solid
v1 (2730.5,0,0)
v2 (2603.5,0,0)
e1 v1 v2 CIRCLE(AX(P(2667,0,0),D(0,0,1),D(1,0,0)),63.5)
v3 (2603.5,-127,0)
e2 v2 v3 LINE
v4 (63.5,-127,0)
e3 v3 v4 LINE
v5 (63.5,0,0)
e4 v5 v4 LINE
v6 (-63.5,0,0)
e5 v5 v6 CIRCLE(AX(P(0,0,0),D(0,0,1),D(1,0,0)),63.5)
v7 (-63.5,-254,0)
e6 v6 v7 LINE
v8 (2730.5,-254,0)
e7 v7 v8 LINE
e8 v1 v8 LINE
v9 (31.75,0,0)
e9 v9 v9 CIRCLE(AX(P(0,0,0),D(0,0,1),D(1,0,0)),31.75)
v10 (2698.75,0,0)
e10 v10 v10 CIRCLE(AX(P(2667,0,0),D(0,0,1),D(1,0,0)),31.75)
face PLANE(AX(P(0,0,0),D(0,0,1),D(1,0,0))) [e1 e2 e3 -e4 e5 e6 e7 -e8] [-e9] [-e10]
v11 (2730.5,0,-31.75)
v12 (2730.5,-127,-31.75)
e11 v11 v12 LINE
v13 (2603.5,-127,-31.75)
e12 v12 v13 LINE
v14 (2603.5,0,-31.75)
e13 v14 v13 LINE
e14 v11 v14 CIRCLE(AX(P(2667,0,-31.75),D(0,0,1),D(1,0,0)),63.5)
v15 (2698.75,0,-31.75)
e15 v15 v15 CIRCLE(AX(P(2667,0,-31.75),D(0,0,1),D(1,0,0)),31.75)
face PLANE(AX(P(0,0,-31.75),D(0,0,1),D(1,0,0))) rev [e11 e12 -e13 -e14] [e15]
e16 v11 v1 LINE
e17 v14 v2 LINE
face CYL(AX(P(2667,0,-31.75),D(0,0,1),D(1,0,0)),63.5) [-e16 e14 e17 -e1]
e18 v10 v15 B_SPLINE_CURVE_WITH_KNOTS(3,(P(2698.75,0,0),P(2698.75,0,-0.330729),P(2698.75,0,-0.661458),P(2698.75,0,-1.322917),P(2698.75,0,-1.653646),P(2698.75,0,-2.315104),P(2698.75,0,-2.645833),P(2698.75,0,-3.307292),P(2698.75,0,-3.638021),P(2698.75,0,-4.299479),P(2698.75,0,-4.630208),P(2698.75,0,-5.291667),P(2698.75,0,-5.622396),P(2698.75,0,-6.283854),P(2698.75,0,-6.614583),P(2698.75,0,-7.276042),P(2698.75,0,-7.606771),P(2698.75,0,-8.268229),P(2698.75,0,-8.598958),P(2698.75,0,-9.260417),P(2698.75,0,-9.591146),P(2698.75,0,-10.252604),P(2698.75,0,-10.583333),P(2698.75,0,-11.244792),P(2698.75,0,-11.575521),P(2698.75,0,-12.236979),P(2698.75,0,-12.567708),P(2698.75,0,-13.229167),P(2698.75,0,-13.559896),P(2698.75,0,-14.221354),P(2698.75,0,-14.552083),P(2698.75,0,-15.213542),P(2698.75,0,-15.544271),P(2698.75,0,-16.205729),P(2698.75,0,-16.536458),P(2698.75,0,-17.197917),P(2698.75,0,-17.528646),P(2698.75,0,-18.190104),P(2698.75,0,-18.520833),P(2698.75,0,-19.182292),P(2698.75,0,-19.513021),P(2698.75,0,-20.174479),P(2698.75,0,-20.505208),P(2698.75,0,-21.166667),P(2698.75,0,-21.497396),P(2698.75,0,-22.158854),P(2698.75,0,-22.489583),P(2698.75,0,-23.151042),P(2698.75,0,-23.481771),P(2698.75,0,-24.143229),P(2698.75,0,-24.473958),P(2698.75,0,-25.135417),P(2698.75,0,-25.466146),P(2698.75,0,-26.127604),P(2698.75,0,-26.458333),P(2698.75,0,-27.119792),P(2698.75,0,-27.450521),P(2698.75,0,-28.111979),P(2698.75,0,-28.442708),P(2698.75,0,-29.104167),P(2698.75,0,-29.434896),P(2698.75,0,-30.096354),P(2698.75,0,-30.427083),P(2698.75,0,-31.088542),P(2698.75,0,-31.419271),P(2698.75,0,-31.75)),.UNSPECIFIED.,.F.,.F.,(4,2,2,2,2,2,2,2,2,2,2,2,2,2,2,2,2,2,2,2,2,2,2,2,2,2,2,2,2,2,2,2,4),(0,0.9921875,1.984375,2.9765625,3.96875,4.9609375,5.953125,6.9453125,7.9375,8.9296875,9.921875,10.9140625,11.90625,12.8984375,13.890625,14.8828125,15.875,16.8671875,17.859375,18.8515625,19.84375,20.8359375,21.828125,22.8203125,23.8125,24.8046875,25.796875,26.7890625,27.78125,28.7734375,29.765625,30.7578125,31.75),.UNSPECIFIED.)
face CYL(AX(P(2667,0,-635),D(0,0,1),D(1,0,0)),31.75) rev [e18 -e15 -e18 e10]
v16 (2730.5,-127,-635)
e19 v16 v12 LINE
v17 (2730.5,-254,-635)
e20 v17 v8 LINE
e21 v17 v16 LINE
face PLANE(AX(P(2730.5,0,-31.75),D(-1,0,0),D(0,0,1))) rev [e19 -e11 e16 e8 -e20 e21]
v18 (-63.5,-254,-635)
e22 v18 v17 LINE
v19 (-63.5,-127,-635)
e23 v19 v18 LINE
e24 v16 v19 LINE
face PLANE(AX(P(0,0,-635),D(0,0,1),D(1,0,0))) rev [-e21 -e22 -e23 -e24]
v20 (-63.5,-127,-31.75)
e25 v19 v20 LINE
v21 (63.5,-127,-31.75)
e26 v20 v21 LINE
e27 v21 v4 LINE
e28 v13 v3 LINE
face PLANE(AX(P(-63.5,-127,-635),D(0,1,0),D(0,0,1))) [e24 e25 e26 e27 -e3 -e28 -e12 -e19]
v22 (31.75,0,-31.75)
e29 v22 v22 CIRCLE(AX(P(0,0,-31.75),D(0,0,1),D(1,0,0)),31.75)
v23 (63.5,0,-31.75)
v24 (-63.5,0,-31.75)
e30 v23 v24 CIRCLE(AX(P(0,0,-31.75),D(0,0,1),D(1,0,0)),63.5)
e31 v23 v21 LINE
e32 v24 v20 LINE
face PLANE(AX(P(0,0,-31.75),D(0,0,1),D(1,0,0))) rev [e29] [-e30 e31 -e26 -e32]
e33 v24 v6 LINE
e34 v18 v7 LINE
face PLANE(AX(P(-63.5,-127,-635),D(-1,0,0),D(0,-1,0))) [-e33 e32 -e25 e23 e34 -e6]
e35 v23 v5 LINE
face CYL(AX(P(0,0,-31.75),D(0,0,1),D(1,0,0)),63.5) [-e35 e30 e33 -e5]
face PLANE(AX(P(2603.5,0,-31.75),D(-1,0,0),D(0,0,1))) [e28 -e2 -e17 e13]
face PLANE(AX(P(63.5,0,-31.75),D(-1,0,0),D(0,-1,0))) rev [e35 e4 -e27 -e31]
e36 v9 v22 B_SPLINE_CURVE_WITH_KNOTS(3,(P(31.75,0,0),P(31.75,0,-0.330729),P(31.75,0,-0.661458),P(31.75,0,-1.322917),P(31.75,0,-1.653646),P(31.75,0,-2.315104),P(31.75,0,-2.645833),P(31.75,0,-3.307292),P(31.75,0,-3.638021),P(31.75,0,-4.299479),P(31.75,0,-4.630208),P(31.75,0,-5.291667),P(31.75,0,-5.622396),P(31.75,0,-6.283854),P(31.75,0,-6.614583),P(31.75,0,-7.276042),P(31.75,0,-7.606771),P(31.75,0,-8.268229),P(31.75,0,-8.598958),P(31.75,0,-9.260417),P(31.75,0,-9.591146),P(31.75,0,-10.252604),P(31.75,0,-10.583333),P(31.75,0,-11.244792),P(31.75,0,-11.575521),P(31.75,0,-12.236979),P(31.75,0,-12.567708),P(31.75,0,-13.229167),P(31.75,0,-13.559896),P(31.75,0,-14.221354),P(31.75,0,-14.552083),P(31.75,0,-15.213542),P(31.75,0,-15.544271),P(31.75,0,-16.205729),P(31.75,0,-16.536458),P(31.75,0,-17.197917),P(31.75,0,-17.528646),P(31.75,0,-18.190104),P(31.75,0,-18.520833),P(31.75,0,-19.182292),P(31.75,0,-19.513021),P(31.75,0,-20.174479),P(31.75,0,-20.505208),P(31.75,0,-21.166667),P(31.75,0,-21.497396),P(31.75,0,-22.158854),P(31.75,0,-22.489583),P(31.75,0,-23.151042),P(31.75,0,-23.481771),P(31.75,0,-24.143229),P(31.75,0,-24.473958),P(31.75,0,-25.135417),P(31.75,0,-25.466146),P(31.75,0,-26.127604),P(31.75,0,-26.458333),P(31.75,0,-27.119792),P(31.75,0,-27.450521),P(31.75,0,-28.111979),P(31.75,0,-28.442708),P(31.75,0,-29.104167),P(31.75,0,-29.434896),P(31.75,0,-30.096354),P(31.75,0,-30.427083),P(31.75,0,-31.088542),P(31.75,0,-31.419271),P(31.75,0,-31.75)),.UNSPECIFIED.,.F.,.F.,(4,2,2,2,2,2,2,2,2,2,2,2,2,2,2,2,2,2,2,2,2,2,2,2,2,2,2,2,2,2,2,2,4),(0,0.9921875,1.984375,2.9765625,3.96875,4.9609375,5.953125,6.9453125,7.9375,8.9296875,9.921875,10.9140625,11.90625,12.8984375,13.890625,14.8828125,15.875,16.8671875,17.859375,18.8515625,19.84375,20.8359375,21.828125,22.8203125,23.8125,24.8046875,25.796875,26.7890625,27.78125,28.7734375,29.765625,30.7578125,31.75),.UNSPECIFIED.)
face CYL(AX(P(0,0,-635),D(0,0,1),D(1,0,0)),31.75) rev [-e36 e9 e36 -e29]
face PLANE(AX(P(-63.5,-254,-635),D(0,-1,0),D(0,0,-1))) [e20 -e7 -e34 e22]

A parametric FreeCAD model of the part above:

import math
import FreeCAD as App
import Part
import Sketcher
Q = App.Units.Quantity


def add_polygon(sketch, points):
    """Adds a closed chain of lines whose ends are joined by coincident constraints."""
    first, n = sketch.GeometryCount, len(points)
    for a, b in zip(points, points[1:] + points[:1]):
        sketch.addGeometry(Part.LineSegment(App.Vector(*a, 0), App.Vector(*b, 0)), False)
    for i in range(n):
        sketch.addConstraint(Sketcher.Constraint("Coincident", first + i, 2, first + (i + 1) % n, 1))

doc = App.newDocument("Part")
params = doc.addObject("Spreadsheet::Sheet", "Params")
for row, (alias, value) in enumerate([
    ("sketch1_radius", "2.5 in"),
    ("pad1_length", "1.25 in"),
    ("sketch2_width", "110 in"),
    ("sketch2_height", "5 in"),
    ("pad2_length", "25 in"),
    ("sketch3_diameter", "2.5 in"),
], start=1):
    params.set(f"A{row}", alias)
    params.set(f"B{row}", "=" + value)
    params.setAlias(f"B{row}", alias)

body = doc.addObject("PartDesign::Body", "Body")
body.AllowCompound = True

# Sketch on XY plane
sketch1 = doc.addObject("Sketcher::SketchObject", "Sketch")
body.addObject(sketch1)
sketch1.AttachmentSupport = (doc.XY_Plane, [""])
sketch1.MapMode = "FlatFace"
sketch1.addGeometry([
    Part.ArcOfCircle(Part.Circle(App.Vector(0, 0, 0), App.Vector(0, 0, 1), 64), math.radians(0), math.radians(180)),  # 0
    Part.LineSegment(App.Vector(-64, 0, 0), App.Vector(-64, -127, 0)),  # 1
    Part.LineSegment(App.Vector(-64, -127, 0), App.Vector(64, -127, 0)),  # 2
    Part.LineSegment(App.Vector(64, -127, 0), App.Vector(64, 0, 0)),  # 3
    Part.ArcOfCircle(Part.Circle(App.Vector(2667, 0, 0), App.Vector(0, 0, 1), 64), math.radians(0), math.radians(180)),  # 4
    Part.LineSegment(App.Vector(2604, 0, 0), App.Vector(2604, -127, 0)),  # 5
    Part.LineSegment(App.Vector(2604, -127, 0), App.Vector(2730, -127, 0)),  # 6
    Part.LineSegment(App.Vector(2730, -127, 0), App.Vector(2730, 0, 0)),  # 7
], False)
sketch1.addConstraint([
    Sketcher.Constraint("Tangent", 0, 2, 1, 1),
    Sketcher.Constraint("Coincident", 1, 2, 2, 1),
    Sketcher.Constraint("Coincident", 2, 2, 3, 1),
    Sketcher.Constraint("Tangent", 3, 2, 0, 1),
    Sketcher.Constraint("Tangent", 4, 2, 5, 1),
    Sketcher.Constraint("Coincident", 5, 2, 6, 1),
    Sketcher.Constraint("Coincident", 6, 2, 7, 1),
    Sketcher.Constraint("Tangent", 7, 2, 4, 1),
    Sketcher.Constraint("Vertical", 1),
    Sketcher.Constraint("Horizontal", 2),
    Sketcher.Constraint("Vertical", 3),
    Sketcher.Constraint("Vertical", 5),
    Sketcher.Constraint("Horizontal", 6),
    Sketcher.Constraint("Vertical", 7),
    Sketcher.Constraint("Coincident", 0, 3, -1, 1),
    Sketcher.Constraint("Equal", 0, 4),
    Sketcher.Constraint("PointOnObject", 4, 3, -1),
    Sketcher.Constraint("Horizontal", 2, 2, 5, 2),
    Sketcher.Constraint("Equal", 6, 1),
    Sketcher.Constraint("Radius", 0, Q("2.5 in")),
    Sketcher.Constraint("DistanceX", -1, 1, 4, 3, Q("105 in")),
])
sketch1.setExpression("Constraints[19]", "Params.sketch1_radius")
pad1 = doc.addObject("PartDesign::Pad", "Pad")
body.addObject(pad1)
pad1.Profile = sketch1
pad1.setExpression("Length", "Params.pad1_length")
pad1.Reversed = True

# Sketch on XY plane
sketch2 = doc.addObject("Sketcher::SketchObject", "Sketch001")
body.addObject(sketch2)
sketch2.AttachmentSupport = (doc.XY_Plane, [""])
sketch2.MapMode = "FlatFace"
add_polygon(sketch2, [(-64, -127), (-64, -254), (2730, -254), (2730, -127)])  # lines 0-3
sketch2.addConstraint([
    Sketcher.Constraint("Vertical", 0),
    Sketcher.Constraint("Horizontal", 1),
    Sketcher.Constraint("Vertical", 2),
    Sketcher.Constraint("Horizontal", 3),
    Sketcher.Constraint("DistanceX", 1, 1, 1, 2, Q("110 in")),
    Sketcher.Constraint("DistanceY", 0, 2, 0, 1, Q("5 in")),
    Sketcher.Constraint("DistanceY", 0, 2, -1, 1, Q("10 in")),
    Sketcher.Constraint("DistanceX", 0, 2, -1, 1, Q("2.5 in")),
])
sketch2.setExpression("Constraints[8]", "Params.sketch2_width")
sketch2.setExpression("Constraints[9]", "Params.sketch2_height")
pad2 = doc.addObject("PartDesign::Pad", "Pad001")
body.addObject(pad2)
pad2.Profile = sketch2
pad2.setExpression("Length", "Params.pad2_length")
pad2.Reversed = True

# Sketch on XY plane
sketch3 = doc.addObject("Sketcher::SketchObject", "Sketch002")
body.addObject(sketch3)
sketch3.AttachmentSupport = (doc.XY_Plane, [""])
sketch3.MapMode = "FlatFace"
sketch3.addGeometry([
    Part.Circle(App.Vector(0, 0, 0), App.Vector(0, 0, 1), 32),
    Part.Circle(App.Vector(2667, 0, 0), App.Vector(0, 0, 1), 32),
], False)
sketch3.addConstraint([
    Sketcher.Constraint("Coincident", 0, 3, -1, 1),
    Sketcher.Constraint("Equal", 0, 1),
    Sketcher.Constraint("PointOnObject", 1, 3, -1),
    Sketcher.Constraint("Diameter", 0, Q("2.5 in")),
    Sketcher.Constraint("DistanceX", -1, 1, 1, 3, Q("105 in")),
])
sketch3.setExpression("Constraints[3]", "Params.sketch3_diameter")
pocket1 = doc.addObject("PartDesign::Pocket", "Pocket")
body.addObject(pocket1)
pocket1.Profile = sketch3
pocket1.Type = "ThroughAll"

doc.recompute()
